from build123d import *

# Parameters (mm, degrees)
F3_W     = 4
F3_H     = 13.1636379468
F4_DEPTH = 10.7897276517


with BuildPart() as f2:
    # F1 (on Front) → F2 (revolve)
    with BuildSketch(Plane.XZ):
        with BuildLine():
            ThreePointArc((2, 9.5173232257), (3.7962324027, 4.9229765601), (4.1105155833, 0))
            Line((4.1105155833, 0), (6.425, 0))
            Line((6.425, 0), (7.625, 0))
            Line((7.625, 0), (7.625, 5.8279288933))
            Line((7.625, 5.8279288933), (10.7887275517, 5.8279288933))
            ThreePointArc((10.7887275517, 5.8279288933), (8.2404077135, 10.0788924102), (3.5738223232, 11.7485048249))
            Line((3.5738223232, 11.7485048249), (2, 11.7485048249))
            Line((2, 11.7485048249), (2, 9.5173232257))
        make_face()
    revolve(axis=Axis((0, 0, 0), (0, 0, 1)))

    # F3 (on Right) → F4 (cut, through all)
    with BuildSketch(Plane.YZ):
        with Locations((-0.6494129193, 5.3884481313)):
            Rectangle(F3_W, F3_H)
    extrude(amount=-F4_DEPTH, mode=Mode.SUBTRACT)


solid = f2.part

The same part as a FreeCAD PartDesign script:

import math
import FreeCAD as App
import Part
import Sketcher
Q = App.Units.Quantity

doc = App.newDocument("Part")
body = doc.addObject("PartDesign::Body", "Body")

sketch1 = doc.addObject("Sketcher::SketchObject", "Sketch")
body.addObject(sketch1)
sketch1.AttachmentSupport = (doc.XZ_Plane, [""])
sketch1.MapMode = "FlatFace"
sketch1.addGeometry(Part.ArcOfCircle(Part.Circle(App.Vector(-11.9, 1.5, 0), App.Vector(0, 0, 1), 16), math.radians(-5), math.radians(30)), False)
sketch1.addGeometry(Part.LineSegment(App.Vector(4.1, 0, 0), App.Vector(7.6, 0, 0)), False)
sketch1.addGeometry(Part.LineSegment(App.Vector(7.6, 0, 0), App.Vector(7.6, 5.8, 0)), False)
sketch1.addGeometry(Part.LineSegment(App.Vector(7.6, 5.8, 0), App.Vector(10.8, 5.8, 0)), False)
sketch1.addGeometry(Part.ArcOfCircle(Part.Circle(App.Vector(3.6, 4.4, 0), App.Vector(0, 0, 1), 7.4), math.radians(11), math.radians(90)), False)
sketch1.addGeometry(Part.LineSegment(App.Vector(3.6, 11.7, 0), App.Vector(2, 11.7, 0)), False)
sketch1.addGeometry(Part.LineSegment(App.Vector(2, 11.7, 0), App.Vector(2, 9.5, 0)), False)
sketch1.addConstraint(Sketcher.Constraint("Coincident", 0, 1, 1, 1))
sketch1.addConstraint(Sketcher.Constraint("Coincident", 1, 2, 2, 1))
sketch1.addConstraint(Sketcher.Constraint("Coincident", 2, 2, 3, 1))
sketch1.addConstraint(Sketcher.Constraint("Coincident", 3, 2, 4, 1))
sketch1.addConstraint(Sketcher.Constraint("Tangent", 4, 2, 5, 1))
sketch1.addConstraint(Sketcher.Constraint("Coincident", 5, 2, 6, 1))
sketch1.addConstraint(Sketcher.Constraint("Coincident", 6, 2, 0, 2))
sketch1.addConstraint(Sketcher.Constraint("Horizontal", 1))
sketch1.addConstraint(Sketcher.Constraint("Vertical", 2))
sketch1.addConstraint(Sketcher.Constraint("Horizontal", 3))
sketch1.addConstraint(Sketcher.Constraint("Horizontal", 5))
sketch1.addConstraint(Sketcher.Constraint("Vertical", 6))
sketch1.addConstraint(Sketcher.Constraint("PointOnObject", 0, 1, -1))
sketch1.addConstraint(Sketcher.Constraint("DistanceX", -1, 1, 5, 2, Q("2 mm")))
sketch1.addConstraint(Sketcher.Constraint("DistanceX", -1, 1, 1, 2, Q("7.625 mm")))
sketch1.addConstraint(Sketcher.Constraint("Radius", 0, Q("16.031146 mm")))
sketch1.addConstraint(Sketcher.Constraint("Radius", 4, Q("7.356385 mm")))
sketch1.addConstraint(Sketcher.Constraint("DistanceY", 2, 1, 2, 2, Q("5.827929 mm")))
sketch1.addConstraint(Sketcher.Constraint("DistanceY", 6, 2, 6, 1, Q("2.231182 mm")))
sketch1.addConstraint(Sketcher.Constraint("DistanceY", -1, 1, 0, 3, Q("1.452299 mm")))
sketch1.addConstraint(Sketcher.Constraint("DistanceX", 1, 1, 1, 2, Q("3.514484 mm")))
sketch1.addConstraint(Sketcher.Constraint("DistanceX", 3, 1, 3, 2, Q("3.163728 mm")))
revolution = doc.addObject("PartDesign::Revolution", "Revolution")
body.addObject(revolution)
revolution.Profile = sketch1
revolution.ReferenceAxis = (sketch1, ["V_Axis"])
revolution.Angle = 360

sketch2 = doc.addObject("Sketcher::SketchObject", "Sketch001")
body.addObject(sketch2)
sketch2.AttachmentSupport = (doc.YZ_Plane, [""])
sketch2.MapMode = "FlatFace"
sketch2.addGeometry(Part.LineSegment(App.Vector(-2.6, 12, 0), App.Vector(-2.6, -1.2, 0)), False)
sketch2.addGeometry(Part.LineSegment(App.Vector(-2.6, -1.2, 0), App.Vector(1.4, -1.2, 0)), False)
sketch2.addGeometry(Part.LineSegment(App.Vector(1.4, -1.2, 0), App.Vector(1.4, 12, 0)), False)
sketch2.addGeometry(Part.LineSegment(App.Vector(1.4, 12, 0), App.Vector(-2.6, 12, 0)), False)
sketch2.addConstraint(Sketcher.Constraint("Coincident", 0, 2, 1, 1))
sketch2.addConstraint(Sketcher.Constraint("Coincident", 1, 2, 2, 1))
sketch2.addConstraint(Sketcher.Constraint("Coincident", 2, 2, 3, 1))
sketch2.addConstraint(Sketcher.Constraint("Coincident", 3, 2, 0, 1))
sketch2.addConstraint(Sketcher.Constraint("Vertical", 0))
sketch2.addConstraint(Sketcher.Constraint("Horizontal", 1))
sketch2.addConstraint(Sketcher.Constraint("Vertical", 2))
sketch2.addConstraint(Sketcher.Constraint("Horizontal", 3))
sketch2.addConstraint(Sketcher.Constraint("DistanceX", 1, 1, 1, 2, Q("4 mm")))
sketch2.addConstraint(Sketcher.Constraint("DistanceY", 0, 2, 0, 1, Q("13.163638 mm")))
sketch2.addConstraint(Sketcher.Constraint("DistanceY", 0, 2, -1, 1, Q("1.193371 mm")))
sketch2.addConstraint(Sketcher.Constraint("DistanceX", 0, 2, -1, 1, Q("2.649413 mm")))
pocket1 = doc.addObject("PartDesign::Pocket", "Pocket")
body.addObject(pocket1)
pocket1.Profile = sketch2
pocket1.Type = "ThroughAll"

doc.recompute()
